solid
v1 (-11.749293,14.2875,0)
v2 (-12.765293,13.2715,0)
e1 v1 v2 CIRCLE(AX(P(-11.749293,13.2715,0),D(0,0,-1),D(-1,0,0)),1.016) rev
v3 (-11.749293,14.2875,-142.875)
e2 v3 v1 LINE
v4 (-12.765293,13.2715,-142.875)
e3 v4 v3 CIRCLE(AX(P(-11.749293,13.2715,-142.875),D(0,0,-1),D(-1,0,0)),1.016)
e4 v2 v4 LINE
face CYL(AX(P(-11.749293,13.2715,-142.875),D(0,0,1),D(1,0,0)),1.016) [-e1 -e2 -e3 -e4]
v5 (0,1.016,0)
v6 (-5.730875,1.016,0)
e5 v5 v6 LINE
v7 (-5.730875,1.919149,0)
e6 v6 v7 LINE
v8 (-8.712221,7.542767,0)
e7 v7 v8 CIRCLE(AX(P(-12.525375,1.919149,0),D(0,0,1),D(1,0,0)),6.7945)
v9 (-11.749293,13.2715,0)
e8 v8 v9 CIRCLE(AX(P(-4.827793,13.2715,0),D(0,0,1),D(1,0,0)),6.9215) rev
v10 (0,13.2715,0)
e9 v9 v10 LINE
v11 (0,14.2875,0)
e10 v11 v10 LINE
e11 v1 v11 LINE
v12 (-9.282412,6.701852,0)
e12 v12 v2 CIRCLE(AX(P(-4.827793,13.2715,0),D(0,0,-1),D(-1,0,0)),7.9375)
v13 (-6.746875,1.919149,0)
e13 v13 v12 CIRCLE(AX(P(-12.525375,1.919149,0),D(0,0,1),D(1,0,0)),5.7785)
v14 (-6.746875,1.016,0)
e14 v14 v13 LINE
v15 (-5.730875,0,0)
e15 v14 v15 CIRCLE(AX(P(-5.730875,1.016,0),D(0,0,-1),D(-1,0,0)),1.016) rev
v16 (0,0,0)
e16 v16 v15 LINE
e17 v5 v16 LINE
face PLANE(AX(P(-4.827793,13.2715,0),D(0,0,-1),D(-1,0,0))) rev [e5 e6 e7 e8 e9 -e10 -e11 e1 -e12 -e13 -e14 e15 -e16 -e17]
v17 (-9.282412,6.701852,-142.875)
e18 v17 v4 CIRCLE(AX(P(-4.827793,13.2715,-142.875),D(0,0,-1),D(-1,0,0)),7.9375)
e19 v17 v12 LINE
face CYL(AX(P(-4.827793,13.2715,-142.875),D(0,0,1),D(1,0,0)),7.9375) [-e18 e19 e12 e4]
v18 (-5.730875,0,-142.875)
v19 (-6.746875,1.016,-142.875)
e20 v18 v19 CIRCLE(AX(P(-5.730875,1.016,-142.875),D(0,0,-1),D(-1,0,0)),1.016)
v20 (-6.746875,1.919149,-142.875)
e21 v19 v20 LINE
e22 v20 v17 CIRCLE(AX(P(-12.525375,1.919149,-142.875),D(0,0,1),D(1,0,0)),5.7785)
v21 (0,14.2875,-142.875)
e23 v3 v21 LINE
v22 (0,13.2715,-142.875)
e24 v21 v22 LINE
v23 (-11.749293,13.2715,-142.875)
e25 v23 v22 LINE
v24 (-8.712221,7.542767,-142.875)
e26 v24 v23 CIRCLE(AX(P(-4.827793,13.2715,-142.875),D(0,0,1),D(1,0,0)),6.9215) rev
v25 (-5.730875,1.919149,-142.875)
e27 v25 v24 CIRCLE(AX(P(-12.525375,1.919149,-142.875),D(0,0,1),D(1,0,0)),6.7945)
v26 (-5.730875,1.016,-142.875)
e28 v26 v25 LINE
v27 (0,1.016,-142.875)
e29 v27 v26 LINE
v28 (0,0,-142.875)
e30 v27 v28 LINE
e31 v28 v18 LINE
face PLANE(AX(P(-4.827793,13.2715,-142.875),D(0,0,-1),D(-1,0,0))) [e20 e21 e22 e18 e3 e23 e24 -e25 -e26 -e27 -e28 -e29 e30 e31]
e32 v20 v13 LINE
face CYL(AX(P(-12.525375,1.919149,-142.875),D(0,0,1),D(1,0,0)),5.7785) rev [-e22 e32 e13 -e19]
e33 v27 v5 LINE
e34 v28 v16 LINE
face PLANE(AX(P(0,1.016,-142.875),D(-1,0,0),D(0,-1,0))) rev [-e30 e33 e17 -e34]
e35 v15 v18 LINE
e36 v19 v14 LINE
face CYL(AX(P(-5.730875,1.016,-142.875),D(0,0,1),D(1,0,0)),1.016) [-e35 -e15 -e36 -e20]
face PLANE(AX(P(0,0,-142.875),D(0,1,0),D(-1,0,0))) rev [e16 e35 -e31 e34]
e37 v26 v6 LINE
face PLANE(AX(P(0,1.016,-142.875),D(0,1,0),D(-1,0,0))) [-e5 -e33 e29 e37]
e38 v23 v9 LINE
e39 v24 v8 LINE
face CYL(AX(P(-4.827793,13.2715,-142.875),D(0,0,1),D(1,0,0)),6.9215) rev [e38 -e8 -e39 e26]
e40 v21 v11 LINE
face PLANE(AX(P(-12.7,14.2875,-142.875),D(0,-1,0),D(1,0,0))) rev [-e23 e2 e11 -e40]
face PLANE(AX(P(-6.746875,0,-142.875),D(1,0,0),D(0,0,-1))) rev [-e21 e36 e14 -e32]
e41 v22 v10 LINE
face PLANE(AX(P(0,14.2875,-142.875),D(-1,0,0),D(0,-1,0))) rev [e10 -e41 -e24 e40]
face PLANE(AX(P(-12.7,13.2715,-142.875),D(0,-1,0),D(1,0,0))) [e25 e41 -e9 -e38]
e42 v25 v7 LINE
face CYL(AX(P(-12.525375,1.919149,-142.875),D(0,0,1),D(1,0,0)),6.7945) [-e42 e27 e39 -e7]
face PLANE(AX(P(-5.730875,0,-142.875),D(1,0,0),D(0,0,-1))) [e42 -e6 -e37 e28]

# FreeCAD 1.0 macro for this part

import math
import FreeCAD as App
import Part
import Sketcher

V = App.Vector
Q = App.Units.Quantity


def edges_at(feature, points):
    """Names of the edges that pass closest to the given points."""
    edges = feature.Shape.Edges
    near = lambda p: min(range(len(edges)), key=lambda i: edges[i].distToShape(Part.Vertex(*p))[0])
    return sorted({f"Edge{near(p) + 1}" for p in points})

doc = App.newDocument("Part")
body = doc.addObject("PartDesign::Body", "Body")

sketch1 = doc.addObject("Sketcher::SketchObject", "Sketch")
body.addObject(sketch1)
sketch1.AttachmentSupport = (doc.XY_Plane, [""])
sketch1.MapMode = "FlatFace"
sketch1.addGeometry(Part.LineSegment(V(-6.7, 0, 0), V(0, 0, 0)), False)
sketch1.addGeometry(Part.LineSegment(V(0, 0, 0), V(0, 1, 0)), False)
sketch1.addGeometry(Part.LineSegment(V(0, 1, 0), V(-5.7, 1, 0)), False)
sketch1.addGeometry(Part.LineSegment(V(-5.7, 1, 0), V(-5.7, 1.9, 0)), False)
sketch1.addGeometry(Part.ArcOfCircle(Part.Circle(V(-12.5, 1.9, 0), V(0, 0, 1), 6.8), math.radians(0), math.radians(56)), False)
sketch1.addGeometry(Part.ArcOfCircle(Part.Circle(V(-4.8, 13.3, 0), V(0, 0, 1), 6.9), math.radians(180), math.radians(236)), False)
sketch1.addGeometry(Part.LineSegment(V(-11.7, 13.3, 0), V(0, 13.3, 0)), False)
sketch1.addGeometry(Part.LineSegment(V(0, 13.3, 0), V(0, 14.3, 0)), False)
sketch1.addGeometry(Part.LineSegment(V(0, 14.3, 0), V(-12.7, 14.3, 0)), False)
sketch1.addGeometry(Part.ArcOfCircle(Part.Circle(V(-4.8, 13.3, 0), V(0, 0, 1), 7.9), math.radians(173), math.radians(236)), False)
sketch1.addGeometry(Part.ArcOfCircle(Part.Circle(V(-12.5, 1.9, 0), V(0, 0, 1), 5.8), math.radians(0), math.radians(56)), False)
sketch1.addGeometry(Part.LineSegment(V(-6.7, 1.9, 0), V(-6.7, 0, 0)), False)
sketch1.addConstraint(Sketcher.Constraint("Coincident", 0, 2, 1, 1))
sketch1.addConstraint(Sketcher.Constraint("Coincident", 1, 2, 2, 1))
sketch1.addConstraint(Sketcher.Constraint("Coincident", 2, 2, 3, 1))
sketch1.addConstraint(Sketcher.Constraint("Tangent", 3, 2, 4, 1))
sketch1.addConstraint(Sketcher.Constraint("Tangent", 4, 2, 5, 2))
sketch1.addConstraint(Sketcher.Constraint("Coincident", 5, 1, 6, 1))
sketch1.addConstraint(Sketcher.Constraint("Coincident", 6, 2, 7, 1))
sketch1.addConstraint(Sketcher.Constraint("Coincident", 7, 2, 8, 1))
sketch1.addConstraint(Sketcher.Constraint("Coincident", 8, 2, 9, 1))
sketch1.addConstraint(Sketcher.Constraint("Tangent", 9, 2, 10, 2))
sketch1.addConstraint(Sketcher.Constraint("Tangent", 10, 1, 11, 1))
sketch1.addConstraint(Sketcher.Constraint("Coincident", 11, 2, 0, 1))
sketch1.addConstraint(Sketcher.Constraint("Horizontal", 0))
sketch1.addConstraint(Sketcher.Constraint("Vertical", 1))
sketch1.addConstraint(Sketcher.Constraint("Horizontal", 2))
sketch1.addConstraint(Sketcher.Constraint("Vertical", 3))
sketch1.addConstraint(Sketcher.Constraint("Horizontal", 6))
sketch1.addConstraint(Sketcher.Constraint("Vertical", 7))
sketch1.addConstraint(Sketcher.Constraint("Horizontal", 8))
sketch1.addConstraint(Sketcher.Constraint("Vertical", 11))
sketch1.addConstraint(Sketcher.Constraint("Coincident", 0, 2, -1, 1))
sketch1.addConstraint(Sketcher.Constraint("Coincident", 9, 3, 5, 3))
sketch1.addConstraint(Sketcher.Constraint("Coincident", 10, 3, 4, 3))
sketch1.addConstraint(Sketcher.Constraint("PointOnObject", 6, 2, -2))
sketch1.addConstraint(Sketcher.Constraint("Horizontal", 9, 3, 5, 1))
sketch1.addConstraint(Sketcher.Constraint("Equal", 1, 7))
sketch1.addConstraint(Sketcher.Constraint("DistanceX", 8, 2, 8, 1, Q("0.5 in")))
sketch1.addConstraint(Sketcher.Constraint("Radius", 9, Q("0.3125 in")))
sketch1.addConstraint(Sketcher.Constraint("DistanceY", 1, 1, 1, 2, Q("0.04 in")))
sketch1.addConstraint(Sketcher.Constraint("Radius", 4, Q("0.2675 in")))
sketch1.addConstraint(Sketcher.Constraint("Radius", 5, Q("0.2725 in")))
sketch1.addConstraint(Sketcher.Constraint("DistanceX", 0, 1, 0, 2, Q("0.265625 in")))
sketch1.addConstraint(Sketcher.Constraint("DistanceY", -1, 1, 7, 2, Q("0.5625 in")))
pad1 = doc.addObject("PartDesign::Pad", "Pad")
body.addObject(pad1)
pad1.Profile = sketch1
pad1.Length = Q("5.625 in")
pad1.Reversed = True
doc.recompute()

fillet = doc.addObject("PartDesign::Fillet", "Fillet")
body.addObject(fillet)
fillet.Base = (pad1, edges_at(pad1, [(-6.747, 0, -71.438), (-12.7, 14.287, -71.438)]))
fillet.Radius = Q("0.04 in")

doc.recompute()
